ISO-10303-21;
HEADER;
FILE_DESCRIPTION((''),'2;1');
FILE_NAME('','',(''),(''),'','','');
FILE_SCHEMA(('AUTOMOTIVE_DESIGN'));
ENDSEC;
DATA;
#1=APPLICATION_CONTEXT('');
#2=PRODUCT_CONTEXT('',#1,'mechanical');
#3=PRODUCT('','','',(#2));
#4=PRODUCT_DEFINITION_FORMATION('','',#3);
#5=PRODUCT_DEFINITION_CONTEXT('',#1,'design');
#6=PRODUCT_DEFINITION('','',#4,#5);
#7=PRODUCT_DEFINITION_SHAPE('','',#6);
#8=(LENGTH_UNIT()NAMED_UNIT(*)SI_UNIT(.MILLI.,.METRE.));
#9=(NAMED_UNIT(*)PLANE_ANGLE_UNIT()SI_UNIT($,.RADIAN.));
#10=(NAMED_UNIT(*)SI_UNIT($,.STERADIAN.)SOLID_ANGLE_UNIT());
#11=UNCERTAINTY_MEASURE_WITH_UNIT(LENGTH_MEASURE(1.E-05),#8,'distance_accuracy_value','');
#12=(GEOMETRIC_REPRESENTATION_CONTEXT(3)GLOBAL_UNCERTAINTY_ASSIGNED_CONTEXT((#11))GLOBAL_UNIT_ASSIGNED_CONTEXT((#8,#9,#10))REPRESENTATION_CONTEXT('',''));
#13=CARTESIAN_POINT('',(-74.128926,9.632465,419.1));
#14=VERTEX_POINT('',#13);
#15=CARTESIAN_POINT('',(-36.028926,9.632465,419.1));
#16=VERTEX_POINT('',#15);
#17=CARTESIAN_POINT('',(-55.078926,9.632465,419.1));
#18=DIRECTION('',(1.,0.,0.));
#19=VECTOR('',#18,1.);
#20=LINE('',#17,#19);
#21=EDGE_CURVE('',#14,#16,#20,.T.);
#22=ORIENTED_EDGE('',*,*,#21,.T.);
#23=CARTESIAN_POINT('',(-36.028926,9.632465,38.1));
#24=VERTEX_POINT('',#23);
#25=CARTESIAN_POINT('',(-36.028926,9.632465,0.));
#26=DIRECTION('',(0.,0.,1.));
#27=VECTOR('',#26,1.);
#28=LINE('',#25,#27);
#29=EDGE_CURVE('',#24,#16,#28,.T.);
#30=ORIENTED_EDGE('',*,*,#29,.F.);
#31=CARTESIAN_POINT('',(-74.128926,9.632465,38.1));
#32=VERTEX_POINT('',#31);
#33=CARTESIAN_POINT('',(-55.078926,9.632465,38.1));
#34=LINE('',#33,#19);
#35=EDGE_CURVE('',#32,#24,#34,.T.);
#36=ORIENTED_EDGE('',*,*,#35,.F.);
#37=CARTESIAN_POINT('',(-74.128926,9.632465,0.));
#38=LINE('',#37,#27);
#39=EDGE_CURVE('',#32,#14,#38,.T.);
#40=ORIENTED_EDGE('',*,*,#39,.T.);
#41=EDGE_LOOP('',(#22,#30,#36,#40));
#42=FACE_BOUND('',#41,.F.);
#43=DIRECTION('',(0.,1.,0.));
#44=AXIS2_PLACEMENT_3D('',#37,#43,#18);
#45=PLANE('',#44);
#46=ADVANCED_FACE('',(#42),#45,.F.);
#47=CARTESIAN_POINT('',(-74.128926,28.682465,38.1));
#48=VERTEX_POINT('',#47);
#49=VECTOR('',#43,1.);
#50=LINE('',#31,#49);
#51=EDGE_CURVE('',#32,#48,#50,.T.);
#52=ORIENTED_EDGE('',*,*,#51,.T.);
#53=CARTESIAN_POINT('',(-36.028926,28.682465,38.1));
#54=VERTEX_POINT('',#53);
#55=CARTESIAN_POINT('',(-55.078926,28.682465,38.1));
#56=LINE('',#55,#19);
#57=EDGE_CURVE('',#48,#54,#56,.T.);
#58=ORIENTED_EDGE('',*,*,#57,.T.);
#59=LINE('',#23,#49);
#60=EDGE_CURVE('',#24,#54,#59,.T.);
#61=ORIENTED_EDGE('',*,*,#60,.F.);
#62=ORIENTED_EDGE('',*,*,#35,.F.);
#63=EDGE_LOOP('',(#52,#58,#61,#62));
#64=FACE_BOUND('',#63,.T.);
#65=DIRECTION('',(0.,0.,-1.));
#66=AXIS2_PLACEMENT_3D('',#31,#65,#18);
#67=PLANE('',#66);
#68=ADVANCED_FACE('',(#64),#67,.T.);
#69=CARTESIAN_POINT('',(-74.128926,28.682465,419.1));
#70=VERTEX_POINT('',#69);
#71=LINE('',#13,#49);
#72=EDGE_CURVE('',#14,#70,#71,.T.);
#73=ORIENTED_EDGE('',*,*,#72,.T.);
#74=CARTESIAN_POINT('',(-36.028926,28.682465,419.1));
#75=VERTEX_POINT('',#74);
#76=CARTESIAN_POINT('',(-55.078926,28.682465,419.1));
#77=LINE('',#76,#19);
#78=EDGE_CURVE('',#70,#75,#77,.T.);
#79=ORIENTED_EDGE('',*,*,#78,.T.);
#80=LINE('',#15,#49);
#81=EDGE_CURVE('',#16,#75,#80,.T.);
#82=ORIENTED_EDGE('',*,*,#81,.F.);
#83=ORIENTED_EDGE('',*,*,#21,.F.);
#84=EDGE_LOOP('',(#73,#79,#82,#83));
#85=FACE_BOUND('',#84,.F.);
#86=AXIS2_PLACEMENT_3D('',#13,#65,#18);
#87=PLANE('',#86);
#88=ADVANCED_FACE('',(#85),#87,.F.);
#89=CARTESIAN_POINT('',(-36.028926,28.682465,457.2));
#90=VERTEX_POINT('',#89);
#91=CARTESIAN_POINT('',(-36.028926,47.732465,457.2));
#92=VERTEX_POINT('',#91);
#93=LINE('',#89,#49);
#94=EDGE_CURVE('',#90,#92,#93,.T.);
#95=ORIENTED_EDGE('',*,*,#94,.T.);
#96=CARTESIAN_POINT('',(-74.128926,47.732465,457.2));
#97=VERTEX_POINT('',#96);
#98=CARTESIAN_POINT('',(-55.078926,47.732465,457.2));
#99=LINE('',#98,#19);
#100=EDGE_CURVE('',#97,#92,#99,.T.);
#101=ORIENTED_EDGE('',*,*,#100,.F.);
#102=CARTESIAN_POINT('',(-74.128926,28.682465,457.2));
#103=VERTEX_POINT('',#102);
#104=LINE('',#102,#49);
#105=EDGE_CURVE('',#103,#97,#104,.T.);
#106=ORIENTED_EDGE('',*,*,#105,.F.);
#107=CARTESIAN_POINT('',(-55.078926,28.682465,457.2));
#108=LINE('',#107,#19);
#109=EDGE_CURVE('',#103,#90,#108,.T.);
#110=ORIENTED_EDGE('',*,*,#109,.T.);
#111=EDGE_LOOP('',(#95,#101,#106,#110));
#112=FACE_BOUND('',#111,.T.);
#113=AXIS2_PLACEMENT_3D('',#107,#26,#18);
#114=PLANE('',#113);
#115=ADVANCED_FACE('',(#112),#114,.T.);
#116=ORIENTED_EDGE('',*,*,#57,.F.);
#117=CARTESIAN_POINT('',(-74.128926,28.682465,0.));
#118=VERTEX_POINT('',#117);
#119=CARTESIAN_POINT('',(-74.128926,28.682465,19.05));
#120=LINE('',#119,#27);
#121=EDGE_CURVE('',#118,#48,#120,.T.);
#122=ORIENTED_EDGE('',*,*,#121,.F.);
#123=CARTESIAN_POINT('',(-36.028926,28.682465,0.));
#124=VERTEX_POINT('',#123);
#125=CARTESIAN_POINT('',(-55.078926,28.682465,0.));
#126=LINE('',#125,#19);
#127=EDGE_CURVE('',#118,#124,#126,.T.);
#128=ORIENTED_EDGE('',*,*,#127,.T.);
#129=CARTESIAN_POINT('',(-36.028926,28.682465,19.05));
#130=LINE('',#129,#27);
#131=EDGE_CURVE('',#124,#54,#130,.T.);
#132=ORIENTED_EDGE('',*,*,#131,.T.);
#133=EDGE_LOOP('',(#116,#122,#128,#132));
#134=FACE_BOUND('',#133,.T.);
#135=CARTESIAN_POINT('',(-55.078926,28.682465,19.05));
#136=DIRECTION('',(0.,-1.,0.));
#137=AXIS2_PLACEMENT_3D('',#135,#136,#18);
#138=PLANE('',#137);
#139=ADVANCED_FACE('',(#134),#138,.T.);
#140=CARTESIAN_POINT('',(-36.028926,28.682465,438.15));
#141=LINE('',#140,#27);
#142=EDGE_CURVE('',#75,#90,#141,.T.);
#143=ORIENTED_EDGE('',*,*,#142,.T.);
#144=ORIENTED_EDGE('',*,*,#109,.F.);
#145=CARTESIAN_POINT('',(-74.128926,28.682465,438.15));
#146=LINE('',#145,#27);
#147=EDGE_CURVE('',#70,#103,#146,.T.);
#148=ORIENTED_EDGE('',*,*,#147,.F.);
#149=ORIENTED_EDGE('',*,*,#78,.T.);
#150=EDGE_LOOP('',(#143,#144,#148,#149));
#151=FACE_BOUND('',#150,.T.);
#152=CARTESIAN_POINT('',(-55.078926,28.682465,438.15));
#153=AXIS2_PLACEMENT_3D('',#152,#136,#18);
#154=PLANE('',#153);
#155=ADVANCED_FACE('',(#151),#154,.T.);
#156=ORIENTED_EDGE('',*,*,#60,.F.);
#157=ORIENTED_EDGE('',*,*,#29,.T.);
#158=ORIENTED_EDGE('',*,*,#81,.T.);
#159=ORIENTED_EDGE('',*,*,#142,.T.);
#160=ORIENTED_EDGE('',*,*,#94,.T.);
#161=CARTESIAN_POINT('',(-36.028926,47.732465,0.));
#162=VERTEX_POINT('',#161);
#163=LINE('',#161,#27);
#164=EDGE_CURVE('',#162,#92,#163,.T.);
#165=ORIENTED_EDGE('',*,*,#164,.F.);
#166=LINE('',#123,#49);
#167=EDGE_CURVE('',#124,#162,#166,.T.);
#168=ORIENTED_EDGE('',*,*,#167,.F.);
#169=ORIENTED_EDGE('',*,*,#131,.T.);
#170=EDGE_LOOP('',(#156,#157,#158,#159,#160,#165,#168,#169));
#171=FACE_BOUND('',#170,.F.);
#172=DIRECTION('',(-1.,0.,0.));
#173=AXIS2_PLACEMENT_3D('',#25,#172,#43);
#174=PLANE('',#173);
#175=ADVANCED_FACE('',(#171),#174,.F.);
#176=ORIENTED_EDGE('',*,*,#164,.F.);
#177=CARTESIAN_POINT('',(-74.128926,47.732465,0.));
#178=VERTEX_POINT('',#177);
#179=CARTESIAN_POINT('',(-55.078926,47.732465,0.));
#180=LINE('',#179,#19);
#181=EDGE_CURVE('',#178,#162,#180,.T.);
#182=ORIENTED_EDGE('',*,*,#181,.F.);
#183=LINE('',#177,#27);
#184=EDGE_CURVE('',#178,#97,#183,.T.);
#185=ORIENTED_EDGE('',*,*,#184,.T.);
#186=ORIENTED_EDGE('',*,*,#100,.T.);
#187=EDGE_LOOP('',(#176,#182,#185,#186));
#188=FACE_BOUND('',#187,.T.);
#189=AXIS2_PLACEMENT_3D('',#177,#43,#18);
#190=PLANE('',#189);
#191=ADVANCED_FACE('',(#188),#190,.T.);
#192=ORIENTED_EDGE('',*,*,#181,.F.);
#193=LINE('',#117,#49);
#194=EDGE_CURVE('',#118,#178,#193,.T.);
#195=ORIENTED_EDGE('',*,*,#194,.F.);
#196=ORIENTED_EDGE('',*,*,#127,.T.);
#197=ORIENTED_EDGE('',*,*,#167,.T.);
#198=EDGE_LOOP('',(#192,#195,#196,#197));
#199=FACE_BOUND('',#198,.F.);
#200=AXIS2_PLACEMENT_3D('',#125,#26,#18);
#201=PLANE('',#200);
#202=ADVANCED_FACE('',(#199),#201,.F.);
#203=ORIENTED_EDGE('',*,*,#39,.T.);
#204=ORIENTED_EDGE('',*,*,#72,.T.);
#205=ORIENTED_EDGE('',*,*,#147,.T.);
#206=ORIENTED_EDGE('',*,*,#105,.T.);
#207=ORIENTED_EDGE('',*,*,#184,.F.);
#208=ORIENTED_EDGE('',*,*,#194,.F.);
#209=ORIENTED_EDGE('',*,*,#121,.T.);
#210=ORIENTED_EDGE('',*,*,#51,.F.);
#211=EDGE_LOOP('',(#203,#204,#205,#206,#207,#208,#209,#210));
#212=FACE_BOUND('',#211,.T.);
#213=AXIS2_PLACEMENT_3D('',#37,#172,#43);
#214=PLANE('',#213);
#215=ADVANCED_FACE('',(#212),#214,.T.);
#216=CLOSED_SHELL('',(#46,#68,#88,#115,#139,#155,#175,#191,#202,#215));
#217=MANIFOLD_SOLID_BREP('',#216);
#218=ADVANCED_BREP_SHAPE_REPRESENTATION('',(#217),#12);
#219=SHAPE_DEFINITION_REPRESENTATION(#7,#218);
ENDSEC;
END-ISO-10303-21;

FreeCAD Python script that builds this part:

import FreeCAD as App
import Part
import Sketcher
Q = App.Units.Quantity


def add_polygon(sketch, points):
    """Adds a closed chain of lines whose ends are joined by coincident constraints."""
    first, n = sketch.GeometryCount, len(points)
    for a, b in zip(points, points[1:] + points[:1]):
        sketch.addGeometry(Part.LineSegment(App.Vector(*a, 0), App.Vector(*b, 0)), False)
    for i in range(n):
        sketch.addConstraint(Sketcher.Constraint("Coincident", first + i, 2, first + (i + 1) % n, 1))

doc = App.newDocument("Part")
body = doc.addObject("PartDesign::Body", "Body")

# Sketch on XY plane
sketch1 = doc.addObject("Sketcher::SketchObject", "Sketch")
body.addObject(sketch1)
sketch1.AttachmentSupport = (doc.XY_Plane, [""])
sketch1.MapMode = "FlatFace"
add_polygon(sketch1, [(-74, 48), (-74, 10), (-36, 10), (-36, 48)])  # lines 0-3
sketch1.addConstraint(Sketcher.Constraint("Vertical", 0))
sketch1.addConstraint(Sketcher.Constraint("Horizontal", 1))
sketch1.addConstraint(Sketcher.Constraint("Vertical", 2))
sketch1.addConstraint(Sketcher.Constraint("Horizontal", 3))
sketch1.addConstraint(Sketcher.Constraint("Equal", 3, 0))
sketch1.addConstraint(Sketcher.Constraint("DistanceX", 1, 1, 1, 2, Q("1.5 in")))
sketch1.addConstraint(Sketcher.Constraint("DistanceX", 0, 2, -1, 1, 74.128926))
sketch1.addConstraint(Sketcher.Constraint("DistanceY", -1, 1, 0, 2, 9.632465))
pad1 = doc.addObject("PartDesign::Pad", "Pad")
body.addObject(pad1)
pad1.Profile = sketch1
pad1.Length = Q("18 in")

# Sketch on XZ plane
sketch2 = doc.addObject("Sketcher::SketchObject", "Sketch001")
body.addObject(sketch2)
sketch2.AttachmentSupport = (doc.XZ_Plane, [""])
sketch2.MapMode = "FlatFace"
sketch2.AttachmentOffset = App.Placement(App.Vector(0, 0, -9.632465), App.Rotation())
add_polygon(sketch2, [(-74, 38), (-74, 0), (-36, 0), (-36, 38)])  # lines 0-3
add_polygon(sketch2, [(-74, 457), (-74, 419), (-36, 419), (-36, 457)])  # lines 4-7
sketch2.addConstraint(Sketcher.Constraint("Vertical", 0))
sketch2.addConstraint(Sketcher.Constraint("Horizontal", 1))
sketch2.addConstraint(Sketcher.Constraint("Vertical", 2))
sketch2.addConstraint(Sketcher.Constraint("Horizontal", 3))
sketch2.addConstraint(Sketcher.Constraint("Vertical", 4))
sketch2.addConstraint(Sketcher.Constraint("Horizontal", 5))
sketch2.addConstraint(Sketcher.Constraint("Vertical", 6))
sketch2.addConstraint(Sketcher.Constraint("Horizontal", 7))
sketch2.addConstraint(Sketcher.Constraint("PointOnObject", 0, 2, -1))
sketch2.addConstraint(Sketcher.Constraint("Vertical", 3, 2, 4, 2))
sketch2.addConstraint(Sketcher.Constraint("Vertical", 2, 2, 5, 2))
sketch2.addConstraint(Sketcher.Constraint("Equal", 7, 0))
sketch2.addConstraint(Sketcher.Constraint("Equal", 2, 4))
sketch2.addConstraint(Sketcher.Constraint("DistanceX", 1, 1, 1, 2, Q("1.5 in")))
sketch2.addConstraint(Sketcher.Constraint("DistanceY", -1, 1, 6, 2, Q("18 in")))
sketch2.addConstraint(Sketcher.Constraint("DistanceX", 0, 2, -1, 1, 74.128926))
pocket1 = doc.addObject("PartDesign::Pocket", "Pocket")
body.addObject(pocket1)
pocket1.Profile = sketch2
pocket1.Length = Q("0.75 in")

doc.recompute()
